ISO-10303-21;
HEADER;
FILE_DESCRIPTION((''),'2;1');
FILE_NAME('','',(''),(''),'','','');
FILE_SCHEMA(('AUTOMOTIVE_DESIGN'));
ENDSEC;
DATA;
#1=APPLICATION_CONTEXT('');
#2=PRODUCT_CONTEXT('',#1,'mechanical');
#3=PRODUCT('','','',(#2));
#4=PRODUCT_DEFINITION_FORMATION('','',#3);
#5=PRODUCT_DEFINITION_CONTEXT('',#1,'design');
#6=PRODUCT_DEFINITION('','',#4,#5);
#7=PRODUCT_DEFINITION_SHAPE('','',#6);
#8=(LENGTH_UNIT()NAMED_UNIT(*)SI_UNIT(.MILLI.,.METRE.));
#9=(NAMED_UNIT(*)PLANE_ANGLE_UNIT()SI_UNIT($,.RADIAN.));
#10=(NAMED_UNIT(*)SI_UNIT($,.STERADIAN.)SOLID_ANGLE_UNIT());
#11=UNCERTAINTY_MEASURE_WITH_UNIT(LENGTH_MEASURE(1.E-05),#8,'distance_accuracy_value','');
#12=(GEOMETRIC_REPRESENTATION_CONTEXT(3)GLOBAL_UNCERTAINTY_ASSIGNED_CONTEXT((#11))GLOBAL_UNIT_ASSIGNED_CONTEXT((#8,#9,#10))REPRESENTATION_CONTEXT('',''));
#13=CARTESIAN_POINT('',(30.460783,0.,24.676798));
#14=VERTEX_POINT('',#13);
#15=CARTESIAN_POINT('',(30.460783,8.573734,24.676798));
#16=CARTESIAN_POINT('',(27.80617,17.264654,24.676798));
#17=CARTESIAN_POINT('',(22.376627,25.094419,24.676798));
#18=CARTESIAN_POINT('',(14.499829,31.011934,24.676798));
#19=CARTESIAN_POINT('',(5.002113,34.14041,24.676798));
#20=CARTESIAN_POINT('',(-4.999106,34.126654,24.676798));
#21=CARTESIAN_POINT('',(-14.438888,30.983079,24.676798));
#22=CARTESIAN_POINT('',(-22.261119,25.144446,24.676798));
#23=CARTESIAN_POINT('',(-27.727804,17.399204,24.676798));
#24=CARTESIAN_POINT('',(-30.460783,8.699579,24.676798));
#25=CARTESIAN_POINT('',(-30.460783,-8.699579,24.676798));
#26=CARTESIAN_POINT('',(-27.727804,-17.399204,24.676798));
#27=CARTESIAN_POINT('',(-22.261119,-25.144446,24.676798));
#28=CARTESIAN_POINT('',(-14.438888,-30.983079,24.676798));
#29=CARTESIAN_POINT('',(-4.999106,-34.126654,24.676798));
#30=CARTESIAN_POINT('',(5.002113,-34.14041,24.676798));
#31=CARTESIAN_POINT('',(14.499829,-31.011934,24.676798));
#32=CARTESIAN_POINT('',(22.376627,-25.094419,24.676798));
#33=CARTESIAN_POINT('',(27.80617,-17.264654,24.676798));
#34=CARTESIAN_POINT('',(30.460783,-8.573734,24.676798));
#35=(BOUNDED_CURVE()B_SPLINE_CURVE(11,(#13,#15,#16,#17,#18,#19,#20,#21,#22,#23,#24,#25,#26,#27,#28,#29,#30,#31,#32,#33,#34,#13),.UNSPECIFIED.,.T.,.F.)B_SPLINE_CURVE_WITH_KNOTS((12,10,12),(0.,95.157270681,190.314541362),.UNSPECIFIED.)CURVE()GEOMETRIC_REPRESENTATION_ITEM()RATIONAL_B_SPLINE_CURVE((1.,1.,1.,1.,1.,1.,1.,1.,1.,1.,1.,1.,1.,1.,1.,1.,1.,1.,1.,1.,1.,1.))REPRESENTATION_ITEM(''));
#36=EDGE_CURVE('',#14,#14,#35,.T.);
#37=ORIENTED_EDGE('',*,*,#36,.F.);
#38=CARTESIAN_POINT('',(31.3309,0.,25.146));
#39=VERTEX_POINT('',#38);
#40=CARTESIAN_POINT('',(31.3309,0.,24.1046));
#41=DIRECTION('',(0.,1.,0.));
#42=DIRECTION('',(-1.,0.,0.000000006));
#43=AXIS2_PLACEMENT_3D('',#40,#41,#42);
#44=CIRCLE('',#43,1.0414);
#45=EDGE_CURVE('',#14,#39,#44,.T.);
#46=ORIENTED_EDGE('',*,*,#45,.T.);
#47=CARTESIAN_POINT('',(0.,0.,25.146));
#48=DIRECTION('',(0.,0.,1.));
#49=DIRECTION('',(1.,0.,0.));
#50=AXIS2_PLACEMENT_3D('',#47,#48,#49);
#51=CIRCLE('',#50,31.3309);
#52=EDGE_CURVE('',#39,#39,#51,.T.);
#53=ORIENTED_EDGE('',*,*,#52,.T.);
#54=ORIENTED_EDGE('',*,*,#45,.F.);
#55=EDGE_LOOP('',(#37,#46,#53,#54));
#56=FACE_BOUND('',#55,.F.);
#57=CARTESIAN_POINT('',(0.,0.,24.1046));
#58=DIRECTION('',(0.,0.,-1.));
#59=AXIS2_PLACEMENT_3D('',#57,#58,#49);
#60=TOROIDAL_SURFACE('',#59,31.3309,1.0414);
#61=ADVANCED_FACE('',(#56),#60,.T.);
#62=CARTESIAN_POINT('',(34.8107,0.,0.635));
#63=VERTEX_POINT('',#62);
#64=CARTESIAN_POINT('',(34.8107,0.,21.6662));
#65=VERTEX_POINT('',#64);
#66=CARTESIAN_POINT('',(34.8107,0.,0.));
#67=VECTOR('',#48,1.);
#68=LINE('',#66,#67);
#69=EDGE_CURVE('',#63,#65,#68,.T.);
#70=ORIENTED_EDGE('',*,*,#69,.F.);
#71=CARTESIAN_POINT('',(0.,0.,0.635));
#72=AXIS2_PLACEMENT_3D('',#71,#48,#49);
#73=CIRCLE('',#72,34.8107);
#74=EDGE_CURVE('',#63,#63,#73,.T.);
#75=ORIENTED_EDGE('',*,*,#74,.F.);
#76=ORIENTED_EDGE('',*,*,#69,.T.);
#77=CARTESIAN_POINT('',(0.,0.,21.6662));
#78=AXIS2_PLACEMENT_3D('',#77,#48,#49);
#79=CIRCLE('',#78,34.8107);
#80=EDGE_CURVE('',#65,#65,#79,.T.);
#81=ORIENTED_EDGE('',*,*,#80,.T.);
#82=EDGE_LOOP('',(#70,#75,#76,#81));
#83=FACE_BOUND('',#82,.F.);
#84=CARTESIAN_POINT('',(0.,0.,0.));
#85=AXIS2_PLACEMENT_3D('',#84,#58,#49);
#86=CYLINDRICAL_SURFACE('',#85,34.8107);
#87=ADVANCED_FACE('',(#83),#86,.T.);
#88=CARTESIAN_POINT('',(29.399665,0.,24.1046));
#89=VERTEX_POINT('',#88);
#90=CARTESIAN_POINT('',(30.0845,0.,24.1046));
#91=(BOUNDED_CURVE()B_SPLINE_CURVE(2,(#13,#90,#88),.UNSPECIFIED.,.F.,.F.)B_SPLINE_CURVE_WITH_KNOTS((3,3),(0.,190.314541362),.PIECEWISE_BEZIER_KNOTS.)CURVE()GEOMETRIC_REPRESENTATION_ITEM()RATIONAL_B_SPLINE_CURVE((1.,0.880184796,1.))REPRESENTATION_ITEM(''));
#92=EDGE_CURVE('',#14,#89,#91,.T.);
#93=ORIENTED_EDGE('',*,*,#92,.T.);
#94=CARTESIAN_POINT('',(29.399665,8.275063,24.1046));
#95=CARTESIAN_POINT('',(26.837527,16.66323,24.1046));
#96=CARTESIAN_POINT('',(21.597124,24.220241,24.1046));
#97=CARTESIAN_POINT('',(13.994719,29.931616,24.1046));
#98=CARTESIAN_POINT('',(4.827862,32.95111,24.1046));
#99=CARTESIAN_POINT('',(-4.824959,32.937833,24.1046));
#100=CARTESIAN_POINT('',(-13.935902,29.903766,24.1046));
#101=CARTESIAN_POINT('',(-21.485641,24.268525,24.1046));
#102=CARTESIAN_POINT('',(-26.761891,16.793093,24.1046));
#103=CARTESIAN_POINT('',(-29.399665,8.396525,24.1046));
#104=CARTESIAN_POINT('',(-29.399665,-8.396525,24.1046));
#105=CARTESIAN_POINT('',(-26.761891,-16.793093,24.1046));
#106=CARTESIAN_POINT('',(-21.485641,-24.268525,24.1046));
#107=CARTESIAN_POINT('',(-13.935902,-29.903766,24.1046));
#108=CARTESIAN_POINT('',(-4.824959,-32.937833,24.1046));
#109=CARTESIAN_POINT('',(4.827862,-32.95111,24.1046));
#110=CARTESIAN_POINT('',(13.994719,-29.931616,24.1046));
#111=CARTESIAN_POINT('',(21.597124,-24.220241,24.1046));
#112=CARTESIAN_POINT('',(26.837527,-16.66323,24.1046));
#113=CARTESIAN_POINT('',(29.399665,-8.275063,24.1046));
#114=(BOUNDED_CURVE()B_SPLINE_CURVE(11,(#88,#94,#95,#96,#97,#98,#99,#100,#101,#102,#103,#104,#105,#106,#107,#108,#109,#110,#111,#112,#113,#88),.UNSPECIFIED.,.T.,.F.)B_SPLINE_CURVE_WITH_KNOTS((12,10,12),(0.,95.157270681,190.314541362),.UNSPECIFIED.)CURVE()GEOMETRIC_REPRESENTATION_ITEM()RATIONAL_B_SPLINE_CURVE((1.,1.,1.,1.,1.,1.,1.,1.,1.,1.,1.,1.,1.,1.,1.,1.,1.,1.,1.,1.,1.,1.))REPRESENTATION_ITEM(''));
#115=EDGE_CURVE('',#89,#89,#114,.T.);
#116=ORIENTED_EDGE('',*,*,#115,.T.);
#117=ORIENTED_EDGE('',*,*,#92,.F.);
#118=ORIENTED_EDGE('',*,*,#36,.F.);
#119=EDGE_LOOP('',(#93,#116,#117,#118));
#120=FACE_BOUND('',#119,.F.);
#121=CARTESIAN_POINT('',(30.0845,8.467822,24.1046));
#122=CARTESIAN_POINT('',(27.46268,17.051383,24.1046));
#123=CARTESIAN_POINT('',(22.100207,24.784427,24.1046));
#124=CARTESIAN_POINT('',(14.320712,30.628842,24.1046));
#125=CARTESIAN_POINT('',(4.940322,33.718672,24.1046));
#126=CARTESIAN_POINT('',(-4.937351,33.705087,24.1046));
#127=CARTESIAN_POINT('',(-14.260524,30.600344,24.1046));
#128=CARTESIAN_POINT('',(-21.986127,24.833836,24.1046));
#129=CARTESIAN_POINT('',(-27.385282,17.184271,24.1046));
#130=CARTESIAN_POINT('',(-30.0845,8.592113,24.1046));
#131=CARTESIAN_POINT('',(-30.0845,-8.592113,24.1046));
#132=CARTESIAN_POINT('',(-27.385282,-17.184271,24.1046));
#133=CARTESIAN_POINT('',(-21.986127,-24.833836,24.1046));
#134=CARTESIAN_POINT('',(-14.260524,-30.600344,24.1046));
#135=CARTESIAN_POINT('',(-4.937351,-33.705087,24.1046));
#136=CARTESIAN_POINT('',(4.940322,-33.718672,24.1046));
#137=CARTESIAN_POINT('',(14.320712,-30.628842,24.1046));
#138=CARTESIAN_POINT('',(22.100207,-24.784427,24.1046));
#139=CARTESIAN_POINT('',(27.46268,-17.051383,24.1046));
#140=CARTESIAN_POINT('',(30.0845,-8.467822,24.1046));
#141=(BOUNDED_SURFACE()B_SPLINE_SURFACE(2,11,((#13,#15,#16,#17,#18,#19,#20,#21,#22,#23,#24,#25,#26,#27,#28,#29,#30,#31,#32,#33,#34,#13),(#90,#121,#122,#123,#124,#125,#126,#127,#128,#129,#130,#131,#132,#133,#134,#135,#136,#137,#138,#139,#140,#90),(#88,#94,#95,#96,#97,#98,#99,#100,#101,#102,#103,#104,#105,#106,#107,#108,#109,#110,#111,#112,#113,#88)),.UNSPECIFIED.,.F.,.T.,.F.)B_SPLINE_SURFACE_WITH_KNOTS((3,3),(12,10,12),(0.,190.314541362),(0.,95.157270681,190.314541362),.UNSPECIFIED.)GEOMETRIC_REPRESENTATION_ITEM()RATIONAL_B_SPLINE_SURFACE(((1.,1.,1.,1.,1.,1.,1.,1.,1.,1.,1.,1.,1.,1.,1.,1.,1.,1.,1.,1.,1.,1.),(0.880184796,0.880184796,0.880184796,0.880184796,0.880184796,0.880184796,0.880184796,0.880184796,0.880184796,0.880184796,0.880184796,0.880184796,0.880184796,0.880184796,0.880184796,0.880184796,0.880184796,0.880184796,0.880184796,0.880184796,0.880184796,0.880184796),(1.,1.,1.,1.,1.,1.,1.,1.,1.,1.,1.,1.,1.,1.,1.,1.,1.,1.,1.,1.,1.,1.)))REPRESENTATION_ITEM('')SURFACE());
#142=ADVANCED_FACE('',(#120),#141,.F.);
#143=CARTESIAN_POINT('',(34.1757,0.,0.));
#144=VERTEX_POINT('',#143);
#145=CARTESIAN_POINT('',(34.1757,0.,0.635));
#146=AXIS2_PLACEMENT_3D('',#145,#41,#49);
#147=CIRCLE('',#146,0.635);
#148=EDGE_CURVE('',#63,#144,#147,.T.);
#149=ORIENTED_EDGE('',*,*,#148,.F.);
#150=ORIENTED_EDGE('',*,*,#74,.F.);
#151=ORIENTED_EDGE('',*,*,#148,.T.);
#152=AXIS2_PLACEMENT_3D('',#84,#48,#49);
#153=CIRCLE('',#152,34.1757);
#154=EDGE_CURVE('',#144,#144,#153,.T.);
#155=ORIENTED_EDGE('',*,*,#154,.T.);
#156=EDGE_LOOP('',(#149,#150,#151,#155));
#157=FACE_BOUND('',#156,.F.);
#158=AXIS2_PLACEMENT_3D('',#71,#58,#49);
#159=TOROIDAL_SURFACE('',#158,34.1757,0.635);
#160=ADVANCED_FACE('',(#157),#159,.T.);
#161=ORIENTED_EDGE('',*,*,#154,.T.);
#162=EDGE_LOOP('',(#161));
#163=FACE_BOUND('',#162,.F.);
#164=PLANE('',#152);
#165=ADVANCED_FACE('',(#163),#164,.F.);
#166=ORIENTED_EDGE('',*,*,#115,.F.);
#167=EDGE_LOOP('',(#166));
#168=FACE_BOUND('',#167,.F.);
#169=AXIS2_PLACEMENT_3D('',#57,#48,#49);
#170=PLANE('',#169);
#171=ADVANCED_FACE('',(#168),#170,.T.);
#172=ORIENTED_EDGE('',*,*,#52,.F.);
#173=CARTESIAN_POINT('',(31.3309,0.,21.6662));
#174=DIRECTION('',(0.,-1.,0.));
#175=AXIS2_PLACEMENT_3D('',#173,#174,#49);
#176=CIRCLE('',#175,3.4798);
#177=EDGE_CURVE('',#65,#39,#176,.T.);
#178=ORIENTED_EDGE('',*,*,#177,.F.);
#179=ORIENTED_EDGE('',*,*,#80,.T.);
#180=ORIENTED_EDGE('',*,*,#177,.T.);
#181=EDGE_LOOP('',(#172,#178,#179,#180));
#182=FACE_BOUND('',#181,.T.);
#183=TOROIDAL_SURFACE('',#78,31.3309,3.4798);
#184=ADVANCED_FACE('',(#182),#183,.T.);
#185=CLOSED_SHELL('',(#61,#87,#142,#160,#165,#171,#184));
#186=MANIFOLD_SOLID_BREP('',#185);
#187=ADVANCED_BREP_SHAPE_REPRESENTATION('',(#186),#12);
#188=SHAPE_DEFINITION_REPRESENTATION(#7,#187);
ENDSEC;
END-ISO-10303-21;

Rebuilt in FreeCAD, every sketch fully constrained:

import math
import FreeCAD as App
import Part
import Sketcher
Q = App.Units.Quantity


def edges_at(feature, points):
    """Names of the edges that pass closest to the given points."""
    edges = feature.Shape.Edges
    near = lambda p: min(range(len(edges)), key=lambda i: edges[i].distToShape(Part.Vertex(*p))[0])
    return sorted({f"Edge{near(p) + 1}" for p in points})

doc = App.newDocument("Part")
body = doc.addObject("PartDesign::Body", "Body")

sketch1 = doc.addObject("Sketcher::SketchObject", "Sketch")
body.addObject(sketch1)
sketch1.AttachmentSupport = (doc.XY_Plane, [""])
sketch1.MapMode = "FlatFace"
sketch1.addGeometry(Part.Circle(App.Vector(0, 0, 0), App.Vector(0, 0, 1), 35), False)
sketch1.addConstraint(Sketcher.Constraint("Coincident", 0, 3, -1, 1))
sketch1.addConstraint(Sketcher.Constraint("Diameter", 0, Q("2.741 in")))
pad1 = doc.addObject("PartDesign::Pad", "Pad")
body.addObject(pad1)
pad1.Profile = sketch1
pad1.Length = Q("0.99 in")
doc.recompute()

fillet = doc.addObject("PartDesign::Fillet", "Fillet")
body.addObject(fillet)
fillet.Base = (pad1, edges_at(pad1, [(-34.811, 0, 25.146)]))
fillet.Radius = Q("0.137 in")
doc.recompute()

fillet2 = doc.addObject("PartDesign::Fillet", "Fillet001")
body.addObject(fillet2)
fillet2.Base = (fillet, edges_at(fillet, [(-34.811, 0, 0)]))
fillet2.Radius = Q("0.025 in")

sketch2 = doc.addObject("Sketcher::SketchObject", "Sketch001")
body.addObject(sketch2)
sketch2.AttachmentSupport = (doc.XZ_Plane, [""])
sketch2.MapMode = "FlatFace"
sketch2.addGeometry(Part.LineSegment(App.Vector(0, 25.1, 0), App.Vector(0, 24.1, 0)), False)
sketch2.addGeometry(Part.LineSegment(App.Vector(0, 24.1, 0), App.Vector(30.3, 24.1, 0)), False)
sketch2.addGeometry(Part.ArcOfCircle(Part.Circle(App.Vector(31.3, 24.1, 0), App.Vector(0, 0, 1), 1), math.radians(90), math.radians(180)), False)
sketch2.addGeometry(Part.LineSegment(App.Vector(31.3, 25.1, 0), App.Vector(0, 25.1, 0)), False)
sketch2.addConstraint(Sketcher.Constraint("Coincident", 0, 2, 1, 1))
sketch2.addConstraint(Sketcher.Constraint("Coincident", 1, 2, 2, 2))
sketch2.addConstraint(Sketcher.Constraint("Tangent", 2, 1, 3, 1))
sketch2.addConstraint(Sketcher.Constraint("Coincident", 3, 2, 0, 1))
sketch2.addConstraint(Sketcher.Constraint("Vertical", 0))
sketch2.addConstraint(Sketcher.Constraint("Horizontal", 1))
sketch2.addConstraint(Sketcher.Constraint("Horizontal", 3))
sketch2.addConstraint(Sketcher.Constraint("PointOnObject", 0, 2, -2))
sketch2.addConstraint(Sketcher.Constraint("Horizontal", 2, 3, 0, 2))
sketch2.addConstraint(Sketcher.Constraint("Radius", 2, Q("0.041 in")))
sketch2.addConstraint(Sketcher.Constraint("DistanceY", -1, 1, 2, 1, Q("0.99 in")))
sketch2.addConstraint(Sketcher.Constraint("DistanceX", 1, 1, 1, 2, Q("1.1925 in")))
groove = doc.addObject("PartDesign::Groove", "Groove")
body.addObject(groove)
groove.Profile = sketch2
groove.ReferenceAxis = (sketch2, ["V_Axis"])
groove.Angle = 360
doc.recompute()

fillet3 = doc.addObject("PartDesign::Fillet", "Fillet002")
body.addObject(fillet3)
fillet3.Base = (groove, edges_at(groove, [(-30.29, 0, 24.105)]))
fillet3.Radius = Q("0.05 in")

doc.recompute()
